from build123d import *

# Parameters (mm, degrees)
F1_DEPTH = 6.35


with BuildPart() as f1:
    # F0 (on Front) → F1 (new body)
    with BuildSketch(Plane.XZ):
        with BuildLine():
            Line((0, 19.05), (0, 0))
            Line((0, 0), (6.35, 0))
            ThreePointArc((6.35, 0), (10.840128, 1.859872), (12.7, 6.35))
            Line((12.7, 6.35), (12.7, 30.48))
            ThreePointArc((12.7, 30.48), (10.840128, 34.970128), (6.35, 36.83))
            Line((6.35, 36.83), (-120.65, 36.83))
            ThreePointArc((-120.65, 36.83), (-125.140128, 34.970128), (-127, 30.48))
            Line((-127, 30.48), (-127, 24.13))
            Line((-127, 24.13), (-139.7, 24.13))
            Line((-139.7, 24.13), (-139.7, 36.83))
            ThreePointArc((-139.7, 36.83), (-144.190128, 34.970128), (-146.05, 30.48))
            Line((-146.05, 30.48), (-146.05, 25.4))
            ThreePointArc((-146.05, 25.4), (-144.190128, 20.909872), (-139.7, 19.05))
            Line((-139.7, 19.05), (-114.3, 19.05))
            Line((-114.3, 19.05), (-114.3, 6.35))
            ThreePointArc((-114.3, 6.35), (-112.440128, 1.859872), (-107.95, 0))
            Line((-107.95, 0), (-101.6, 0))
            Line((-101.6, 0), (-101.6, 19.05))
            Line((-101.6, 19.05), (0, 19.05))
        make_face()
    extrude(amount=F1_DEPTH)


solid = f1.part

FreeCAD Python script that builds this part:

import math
import FreeCAD as App
import Part
import Sketcher
Q = App.Units.Quantity

doc = App.newDocument("Part")
body = doc.addObject("PartDesign::Body", "Body")

sketch1 = body.newObject("Sketcher::SketchObject", "Sketch")
sketch1.AttachmentSupport = (doc.getObject("XZ_Plane"), [""])
sketch1.MapMode = "FlatFace"
sketch1.addGeometry([
    Part.LineSegment(App.Vector(0, 19.05, 0), App.Vector(0, 0, 0)),
    Part.LineSegment(App.Vector(0, 0, 0), App.Vector(6.35, 0, 0)),
    Part.ArcOfCircle(Part.Circle(App.Vector(6.35, 6.35, 0), App.Vector(0, 0, 1), 6.35), math.radians(-89.999998), math.radians(-0.000002)),
    Part.LineSegment(App.Vector(12.7, 6.35, 0), App.Vector(12.7, 30.48, 0)),
    Part.ArcOfCircle(Part.Circle(App.Vector(6.35, 30.48, 0), App.Vector(0, 0, 1), 6.35), math.radians(0.000002), math.radians(89.999998)),
    Part.LineSegment(App.Vector(6.35, 36.83, 0), App.Vector(-120.65, 36.83, 0)),
    Part.ArcOfCircle(Part.Circle(App.Vector(-120.65, 30.48, 0), App.Vector(0, 0, 1), 6.35), math.radians(90.000002), math.radians(179.999998)),
    Part.LineSegment(App.Vector(-127, 30.48, 0), App.Vector(-127, 24.13, 0)),
    Part.LineSegment(App.Vector(-127, 24.13, 0), App.Vector(-139.7, 24.13, 0)),
    Part.LineSegment(App.Vector(-139.7, 24.13, 0), App.Vector(-139.7, 36.83, 0)),
    Part.ArcOfCircle(Part.Circle(App.Vector(-139.7, 30.48, 0), App.Vector(0, 0, 1), 6.35), math.radians(90.000002), math.radians(179.999998)),
    Part.LineSegment(App.Vector(-146.05, 30.48, 0), App.Vector(-146.05, 25.4, 0)),
    Part.ArcOfCircle(Part.Circle(App.Vector(-139.7, 25.4, 0), App.Vector(0, 0, 1), 6.35), math.radians(-179.999998), math.radians(-90.000002)),
    Part.LineSegment(App.Vector(-139.7, 19.05, 0), App.Vector(-114.3, 19.05, 0)),
    Part.LineSegment(App.Vector(-114.3, 19.05, 0), App.Vector(-114.3, 6.35, 0)),
    Part.ArcOfCircle(Part.Circle(App.Vector(-107.95, 6.35, 0), App.Vector(0, 0, 1), 6.35), math.radians(-179.999998), math.radians(-90.000002)),
    Part.LineSegment(App.Vector(-107.95, 0, 0), App.Vector(-101.6, 0, 0)),
    Part.LineSegment(App.Vector(-101.6, 0, 0), App.Vector(-101.6, 19.05, 0)),
    Part.LineSegment(App.Vector(-101.6, 19.05, 0), App.Vector(0, 19.05, 0)),
], False)
sketch1.addConstraint([
    Sketcher.Constraint("Coincident", 0, 2, 1, 1),
    Sketcher.Constraint("Tangent", 1, 2, 2, 1),
    Sketcher.Constraint("Tangent", 2, 2, 3, 1),
    Sketcher.Constraint("Tangent", 3, 2, 4, 1),
    Sketcher.Constraint("Tangent", 4, 2, 5, 1),
    Sketcher.Constraint("Tangent", 5, 2, 6, 1),
    Sketcher.Constraint("Tangent", 6, 2, 7, 1),
    Sketcher.Constraint("Coincident", 7, 2, 8, 1),
    Sketcher.Constraint("Coincident", 8, 2, 9, 1),
    Sketcher.Constraint("Coincident", 9, 2, 10, 1),
    Sketcher.Constraint("Tangent", 10, 2, 11, 1),
    Sketcher.Constraint("Tangent", 11, 2, 12, 1),
    Sketcher.Constraint("Tangent", 12, 2, 13, 1),
    Sketcher.Constraint("Coincident", 13, 2, 14, 1),
    Sketcher.Constraint("Tangent", 14, 2, 15, 1),
    Sketcher.Constraint("Tangent", 15, 2, 16, 1),
    Sketcher.Constraint("Coincident", 16, 2, 17, 1),
    Sketcher.Constraint("Coincident", 17, 2, 18, 1),
    Sketcher.Constraint("Coincident", 18, 2, 0, 1),
    Sketcher.Constraint("Vertical", 0),
    Sketcher.Constraint("Horizontal", 1),
    Sketcher.Constraint("Vertical", 3),
    Sketcher.Constraint("Horizontal", 5),
    Sketcher.Constraint("Vertical", 7),
    Sketcher.Constraint("Horizontal", 8),
    Sketcher.Constraint("Vertical", 9),
    Sketcher.Constraint("Vertical", 11),
    Sketcher.Constraint("Horizontal", 13),
    Sketcher.Constraint("Vertical", 14),
    Sketcher.Constraint("Horizontal", 16),
    Sketcher.Constraint("Vertical", 17),
    Sketcher.Constraint("Horizontal", 18),
    Sketcher.Constraint("Coincident", 0, 2, -1, 1),
    Sketcher.Constraint("Equal", 2, 4),
    Sketcher.Constraint("Equal", 4, 6),
    Sketcher.Constraint("Equal", 6, 10),
    Sketcher.Constraint("Equal", 10, 12),
    Sketcher.Constraint("Equal", 12, 15),
    Sketcher.Constraint("PointOnObject", 15, 2, -1),
    Sketcher.Constraint("Horizontal", 6, 3, 10, 3),
    Sketcher.Constraint("Horizontal", 13, 2, 17, 2),
    Sketcher.Constraint("Vertical", 12, 3, 8, 2),
    Sketcher.Constraint("Equal", 1, 16),
    Sketcher.Constraint("Equal", 16, 7),
    Sketcher.Constraint("Equal", 8, 9),
    Sketcher.Constraint("Equal", 9, 14),
    Sketcher.Constraint("DistanceX", 5, 2, 5, 1, Q("5 in")),
    Sketcher.Constraint("DistanceX", 13, 1, 13, 2, Q("1 in")),
    Sketcher.Constraint("DistanceX", 18, 1, 18, 2, Q("4 in")),
    Sketcher.Constraint("Radius", 2, Q("0.25 in")),
    Sketcher.Constraint("DistanceY", 11, 2, 11, 1, Q("0.2 in")),
])
pad1 = body.newObject("PartDesign::Pad", "Pad")
pad1.Profile = sketch1
pad1.Length = Q("0.25 in")

doc.recompute()
